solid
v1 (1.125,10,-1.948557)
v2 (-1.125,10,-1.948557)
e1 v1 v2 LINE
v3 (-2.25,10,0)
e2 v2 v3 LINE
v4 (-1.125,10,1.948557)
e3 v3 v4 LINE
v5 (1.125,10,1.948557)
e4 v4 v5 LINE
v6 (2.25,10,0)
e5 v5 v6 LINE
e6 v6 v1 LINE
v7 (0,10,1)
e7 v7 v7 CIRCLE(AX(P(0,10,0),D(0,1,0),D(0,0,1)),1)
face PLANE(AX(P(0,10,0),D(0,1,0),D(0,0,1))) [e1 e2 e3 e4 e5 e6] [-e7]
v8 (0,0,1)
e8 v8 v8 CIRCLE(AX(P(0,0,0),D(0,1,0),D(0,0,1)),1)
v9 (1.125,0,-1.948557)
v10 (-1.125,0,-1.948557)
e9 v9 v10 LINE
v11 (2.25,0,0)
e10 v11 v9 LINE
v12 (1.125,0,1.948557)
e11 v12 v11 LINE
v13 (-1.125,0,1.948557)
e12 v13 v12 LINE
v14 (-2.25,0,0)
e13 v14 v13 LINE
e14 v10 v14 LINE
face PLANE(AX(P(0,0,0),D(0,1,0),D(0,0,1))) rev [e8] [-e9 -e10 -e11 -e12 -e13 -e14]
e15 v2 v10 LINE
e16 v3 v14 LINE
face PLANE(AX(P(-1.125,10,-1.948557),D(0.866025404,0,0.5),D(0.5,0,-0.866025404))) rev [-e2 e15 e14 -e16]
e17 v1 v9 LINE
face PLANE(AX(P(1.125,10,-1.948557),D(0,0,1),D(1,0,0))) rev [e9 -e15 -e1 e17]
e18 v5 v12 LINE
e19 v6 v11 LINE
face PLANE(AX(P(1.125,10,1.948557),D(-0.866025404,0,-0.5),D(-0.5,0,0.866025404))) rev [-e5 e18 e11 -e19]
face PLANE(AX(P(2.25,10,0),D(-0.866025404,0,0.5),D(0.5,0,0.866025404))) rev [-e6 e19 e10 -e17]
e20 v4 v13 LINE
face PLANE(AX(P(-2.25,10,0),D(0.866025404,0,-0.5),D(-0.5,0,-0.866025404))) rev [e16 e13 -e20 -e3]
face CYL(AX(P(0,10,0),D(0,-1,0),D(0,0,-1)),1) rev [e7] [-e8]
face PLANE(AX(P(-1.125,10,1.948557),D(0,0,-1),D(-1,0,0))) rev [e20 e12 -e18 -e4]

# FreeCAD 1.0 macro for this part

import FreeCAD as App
import Part
import Sketcher
Q = App.Units.Quantity


def add_polygon(sketch, points):
    """Adds a closed chain of lines whose ends are joined by coincident constraints."""
    first, n = sketch.GeometryCount, len(points)
    for a, b in zip(points, points[1:] + points[:1]):
        sketch.addGeometry(Part.LineSegment(App.Vector(*a, 0), App.Vector(*b, 0)), False)
    for i in range(n):
        sketch.addConstraint(Sketcher.Constraint("Coincident", first + i, 2, first + (i + 1) % n, 1))

doc = App.newDocument("Part")
body = doc.addObject("PartDesign::Body", "Body")

# Sketch on XZ plane
sketch1 = body.newObject("Sketcher::SketchObject", "Sketch")
sketch1.AttachmentSupport = (doc.getObject("XZ_Plane"), [""])
sketch1.MapMode = "FlatFace"
add_polygon(sketch1, [(2.2, 0), (1.1, -1.9), (-1.1, -1.9), (-2.2, 0), (-1.1, 1.9), (1.1, 1.9)])  # lines 0-5
sketch1.addGeometry(Part.Circle(App.Vector(0, 0, 0), App.Vector(0, 0, 1), 1), False)  # 6
sketch1.addConstraint([
    Sketcher.Constraint("Horizontal", 1),
    Sketcher.Constraint("Horizontal", 4),
    Sketcher.Constraint("Coincident", 6, 3, -1, 1),
    Sketcher.Constraint("Symmetric", 0, 2, 3, 2, -1, 1),
    Sketcher.Constraint("Symmetric", 2, 2, 5, 2, -1, 1),
    Sketcher.Constraint("PointOnObject", 2, 2, -1),
    Sketcher.Constraint("Parallel", 2, 5),
    Sketcher.Constraint("Vertical", 1, 2, 3, 2),
    Sketcher.Constraint("Diameter", 6, Q("2 mm")),
    Sketcher.Constraint("Angle", 0, Q("-120 deg")),
    Sketcher.Constraint("DistanceX", 1, 2, 1, 1, Q("2.25 mm")),
    Sketcher.Constraint("Distance", 0, Q("2.25 mm")),
])
pad1 = body.newObject("PartDesign::Pad", "Pad")
pad1.Profile = sketch1
pad1.Length = 10
pad1.Reversed = True

doc.recompute()
